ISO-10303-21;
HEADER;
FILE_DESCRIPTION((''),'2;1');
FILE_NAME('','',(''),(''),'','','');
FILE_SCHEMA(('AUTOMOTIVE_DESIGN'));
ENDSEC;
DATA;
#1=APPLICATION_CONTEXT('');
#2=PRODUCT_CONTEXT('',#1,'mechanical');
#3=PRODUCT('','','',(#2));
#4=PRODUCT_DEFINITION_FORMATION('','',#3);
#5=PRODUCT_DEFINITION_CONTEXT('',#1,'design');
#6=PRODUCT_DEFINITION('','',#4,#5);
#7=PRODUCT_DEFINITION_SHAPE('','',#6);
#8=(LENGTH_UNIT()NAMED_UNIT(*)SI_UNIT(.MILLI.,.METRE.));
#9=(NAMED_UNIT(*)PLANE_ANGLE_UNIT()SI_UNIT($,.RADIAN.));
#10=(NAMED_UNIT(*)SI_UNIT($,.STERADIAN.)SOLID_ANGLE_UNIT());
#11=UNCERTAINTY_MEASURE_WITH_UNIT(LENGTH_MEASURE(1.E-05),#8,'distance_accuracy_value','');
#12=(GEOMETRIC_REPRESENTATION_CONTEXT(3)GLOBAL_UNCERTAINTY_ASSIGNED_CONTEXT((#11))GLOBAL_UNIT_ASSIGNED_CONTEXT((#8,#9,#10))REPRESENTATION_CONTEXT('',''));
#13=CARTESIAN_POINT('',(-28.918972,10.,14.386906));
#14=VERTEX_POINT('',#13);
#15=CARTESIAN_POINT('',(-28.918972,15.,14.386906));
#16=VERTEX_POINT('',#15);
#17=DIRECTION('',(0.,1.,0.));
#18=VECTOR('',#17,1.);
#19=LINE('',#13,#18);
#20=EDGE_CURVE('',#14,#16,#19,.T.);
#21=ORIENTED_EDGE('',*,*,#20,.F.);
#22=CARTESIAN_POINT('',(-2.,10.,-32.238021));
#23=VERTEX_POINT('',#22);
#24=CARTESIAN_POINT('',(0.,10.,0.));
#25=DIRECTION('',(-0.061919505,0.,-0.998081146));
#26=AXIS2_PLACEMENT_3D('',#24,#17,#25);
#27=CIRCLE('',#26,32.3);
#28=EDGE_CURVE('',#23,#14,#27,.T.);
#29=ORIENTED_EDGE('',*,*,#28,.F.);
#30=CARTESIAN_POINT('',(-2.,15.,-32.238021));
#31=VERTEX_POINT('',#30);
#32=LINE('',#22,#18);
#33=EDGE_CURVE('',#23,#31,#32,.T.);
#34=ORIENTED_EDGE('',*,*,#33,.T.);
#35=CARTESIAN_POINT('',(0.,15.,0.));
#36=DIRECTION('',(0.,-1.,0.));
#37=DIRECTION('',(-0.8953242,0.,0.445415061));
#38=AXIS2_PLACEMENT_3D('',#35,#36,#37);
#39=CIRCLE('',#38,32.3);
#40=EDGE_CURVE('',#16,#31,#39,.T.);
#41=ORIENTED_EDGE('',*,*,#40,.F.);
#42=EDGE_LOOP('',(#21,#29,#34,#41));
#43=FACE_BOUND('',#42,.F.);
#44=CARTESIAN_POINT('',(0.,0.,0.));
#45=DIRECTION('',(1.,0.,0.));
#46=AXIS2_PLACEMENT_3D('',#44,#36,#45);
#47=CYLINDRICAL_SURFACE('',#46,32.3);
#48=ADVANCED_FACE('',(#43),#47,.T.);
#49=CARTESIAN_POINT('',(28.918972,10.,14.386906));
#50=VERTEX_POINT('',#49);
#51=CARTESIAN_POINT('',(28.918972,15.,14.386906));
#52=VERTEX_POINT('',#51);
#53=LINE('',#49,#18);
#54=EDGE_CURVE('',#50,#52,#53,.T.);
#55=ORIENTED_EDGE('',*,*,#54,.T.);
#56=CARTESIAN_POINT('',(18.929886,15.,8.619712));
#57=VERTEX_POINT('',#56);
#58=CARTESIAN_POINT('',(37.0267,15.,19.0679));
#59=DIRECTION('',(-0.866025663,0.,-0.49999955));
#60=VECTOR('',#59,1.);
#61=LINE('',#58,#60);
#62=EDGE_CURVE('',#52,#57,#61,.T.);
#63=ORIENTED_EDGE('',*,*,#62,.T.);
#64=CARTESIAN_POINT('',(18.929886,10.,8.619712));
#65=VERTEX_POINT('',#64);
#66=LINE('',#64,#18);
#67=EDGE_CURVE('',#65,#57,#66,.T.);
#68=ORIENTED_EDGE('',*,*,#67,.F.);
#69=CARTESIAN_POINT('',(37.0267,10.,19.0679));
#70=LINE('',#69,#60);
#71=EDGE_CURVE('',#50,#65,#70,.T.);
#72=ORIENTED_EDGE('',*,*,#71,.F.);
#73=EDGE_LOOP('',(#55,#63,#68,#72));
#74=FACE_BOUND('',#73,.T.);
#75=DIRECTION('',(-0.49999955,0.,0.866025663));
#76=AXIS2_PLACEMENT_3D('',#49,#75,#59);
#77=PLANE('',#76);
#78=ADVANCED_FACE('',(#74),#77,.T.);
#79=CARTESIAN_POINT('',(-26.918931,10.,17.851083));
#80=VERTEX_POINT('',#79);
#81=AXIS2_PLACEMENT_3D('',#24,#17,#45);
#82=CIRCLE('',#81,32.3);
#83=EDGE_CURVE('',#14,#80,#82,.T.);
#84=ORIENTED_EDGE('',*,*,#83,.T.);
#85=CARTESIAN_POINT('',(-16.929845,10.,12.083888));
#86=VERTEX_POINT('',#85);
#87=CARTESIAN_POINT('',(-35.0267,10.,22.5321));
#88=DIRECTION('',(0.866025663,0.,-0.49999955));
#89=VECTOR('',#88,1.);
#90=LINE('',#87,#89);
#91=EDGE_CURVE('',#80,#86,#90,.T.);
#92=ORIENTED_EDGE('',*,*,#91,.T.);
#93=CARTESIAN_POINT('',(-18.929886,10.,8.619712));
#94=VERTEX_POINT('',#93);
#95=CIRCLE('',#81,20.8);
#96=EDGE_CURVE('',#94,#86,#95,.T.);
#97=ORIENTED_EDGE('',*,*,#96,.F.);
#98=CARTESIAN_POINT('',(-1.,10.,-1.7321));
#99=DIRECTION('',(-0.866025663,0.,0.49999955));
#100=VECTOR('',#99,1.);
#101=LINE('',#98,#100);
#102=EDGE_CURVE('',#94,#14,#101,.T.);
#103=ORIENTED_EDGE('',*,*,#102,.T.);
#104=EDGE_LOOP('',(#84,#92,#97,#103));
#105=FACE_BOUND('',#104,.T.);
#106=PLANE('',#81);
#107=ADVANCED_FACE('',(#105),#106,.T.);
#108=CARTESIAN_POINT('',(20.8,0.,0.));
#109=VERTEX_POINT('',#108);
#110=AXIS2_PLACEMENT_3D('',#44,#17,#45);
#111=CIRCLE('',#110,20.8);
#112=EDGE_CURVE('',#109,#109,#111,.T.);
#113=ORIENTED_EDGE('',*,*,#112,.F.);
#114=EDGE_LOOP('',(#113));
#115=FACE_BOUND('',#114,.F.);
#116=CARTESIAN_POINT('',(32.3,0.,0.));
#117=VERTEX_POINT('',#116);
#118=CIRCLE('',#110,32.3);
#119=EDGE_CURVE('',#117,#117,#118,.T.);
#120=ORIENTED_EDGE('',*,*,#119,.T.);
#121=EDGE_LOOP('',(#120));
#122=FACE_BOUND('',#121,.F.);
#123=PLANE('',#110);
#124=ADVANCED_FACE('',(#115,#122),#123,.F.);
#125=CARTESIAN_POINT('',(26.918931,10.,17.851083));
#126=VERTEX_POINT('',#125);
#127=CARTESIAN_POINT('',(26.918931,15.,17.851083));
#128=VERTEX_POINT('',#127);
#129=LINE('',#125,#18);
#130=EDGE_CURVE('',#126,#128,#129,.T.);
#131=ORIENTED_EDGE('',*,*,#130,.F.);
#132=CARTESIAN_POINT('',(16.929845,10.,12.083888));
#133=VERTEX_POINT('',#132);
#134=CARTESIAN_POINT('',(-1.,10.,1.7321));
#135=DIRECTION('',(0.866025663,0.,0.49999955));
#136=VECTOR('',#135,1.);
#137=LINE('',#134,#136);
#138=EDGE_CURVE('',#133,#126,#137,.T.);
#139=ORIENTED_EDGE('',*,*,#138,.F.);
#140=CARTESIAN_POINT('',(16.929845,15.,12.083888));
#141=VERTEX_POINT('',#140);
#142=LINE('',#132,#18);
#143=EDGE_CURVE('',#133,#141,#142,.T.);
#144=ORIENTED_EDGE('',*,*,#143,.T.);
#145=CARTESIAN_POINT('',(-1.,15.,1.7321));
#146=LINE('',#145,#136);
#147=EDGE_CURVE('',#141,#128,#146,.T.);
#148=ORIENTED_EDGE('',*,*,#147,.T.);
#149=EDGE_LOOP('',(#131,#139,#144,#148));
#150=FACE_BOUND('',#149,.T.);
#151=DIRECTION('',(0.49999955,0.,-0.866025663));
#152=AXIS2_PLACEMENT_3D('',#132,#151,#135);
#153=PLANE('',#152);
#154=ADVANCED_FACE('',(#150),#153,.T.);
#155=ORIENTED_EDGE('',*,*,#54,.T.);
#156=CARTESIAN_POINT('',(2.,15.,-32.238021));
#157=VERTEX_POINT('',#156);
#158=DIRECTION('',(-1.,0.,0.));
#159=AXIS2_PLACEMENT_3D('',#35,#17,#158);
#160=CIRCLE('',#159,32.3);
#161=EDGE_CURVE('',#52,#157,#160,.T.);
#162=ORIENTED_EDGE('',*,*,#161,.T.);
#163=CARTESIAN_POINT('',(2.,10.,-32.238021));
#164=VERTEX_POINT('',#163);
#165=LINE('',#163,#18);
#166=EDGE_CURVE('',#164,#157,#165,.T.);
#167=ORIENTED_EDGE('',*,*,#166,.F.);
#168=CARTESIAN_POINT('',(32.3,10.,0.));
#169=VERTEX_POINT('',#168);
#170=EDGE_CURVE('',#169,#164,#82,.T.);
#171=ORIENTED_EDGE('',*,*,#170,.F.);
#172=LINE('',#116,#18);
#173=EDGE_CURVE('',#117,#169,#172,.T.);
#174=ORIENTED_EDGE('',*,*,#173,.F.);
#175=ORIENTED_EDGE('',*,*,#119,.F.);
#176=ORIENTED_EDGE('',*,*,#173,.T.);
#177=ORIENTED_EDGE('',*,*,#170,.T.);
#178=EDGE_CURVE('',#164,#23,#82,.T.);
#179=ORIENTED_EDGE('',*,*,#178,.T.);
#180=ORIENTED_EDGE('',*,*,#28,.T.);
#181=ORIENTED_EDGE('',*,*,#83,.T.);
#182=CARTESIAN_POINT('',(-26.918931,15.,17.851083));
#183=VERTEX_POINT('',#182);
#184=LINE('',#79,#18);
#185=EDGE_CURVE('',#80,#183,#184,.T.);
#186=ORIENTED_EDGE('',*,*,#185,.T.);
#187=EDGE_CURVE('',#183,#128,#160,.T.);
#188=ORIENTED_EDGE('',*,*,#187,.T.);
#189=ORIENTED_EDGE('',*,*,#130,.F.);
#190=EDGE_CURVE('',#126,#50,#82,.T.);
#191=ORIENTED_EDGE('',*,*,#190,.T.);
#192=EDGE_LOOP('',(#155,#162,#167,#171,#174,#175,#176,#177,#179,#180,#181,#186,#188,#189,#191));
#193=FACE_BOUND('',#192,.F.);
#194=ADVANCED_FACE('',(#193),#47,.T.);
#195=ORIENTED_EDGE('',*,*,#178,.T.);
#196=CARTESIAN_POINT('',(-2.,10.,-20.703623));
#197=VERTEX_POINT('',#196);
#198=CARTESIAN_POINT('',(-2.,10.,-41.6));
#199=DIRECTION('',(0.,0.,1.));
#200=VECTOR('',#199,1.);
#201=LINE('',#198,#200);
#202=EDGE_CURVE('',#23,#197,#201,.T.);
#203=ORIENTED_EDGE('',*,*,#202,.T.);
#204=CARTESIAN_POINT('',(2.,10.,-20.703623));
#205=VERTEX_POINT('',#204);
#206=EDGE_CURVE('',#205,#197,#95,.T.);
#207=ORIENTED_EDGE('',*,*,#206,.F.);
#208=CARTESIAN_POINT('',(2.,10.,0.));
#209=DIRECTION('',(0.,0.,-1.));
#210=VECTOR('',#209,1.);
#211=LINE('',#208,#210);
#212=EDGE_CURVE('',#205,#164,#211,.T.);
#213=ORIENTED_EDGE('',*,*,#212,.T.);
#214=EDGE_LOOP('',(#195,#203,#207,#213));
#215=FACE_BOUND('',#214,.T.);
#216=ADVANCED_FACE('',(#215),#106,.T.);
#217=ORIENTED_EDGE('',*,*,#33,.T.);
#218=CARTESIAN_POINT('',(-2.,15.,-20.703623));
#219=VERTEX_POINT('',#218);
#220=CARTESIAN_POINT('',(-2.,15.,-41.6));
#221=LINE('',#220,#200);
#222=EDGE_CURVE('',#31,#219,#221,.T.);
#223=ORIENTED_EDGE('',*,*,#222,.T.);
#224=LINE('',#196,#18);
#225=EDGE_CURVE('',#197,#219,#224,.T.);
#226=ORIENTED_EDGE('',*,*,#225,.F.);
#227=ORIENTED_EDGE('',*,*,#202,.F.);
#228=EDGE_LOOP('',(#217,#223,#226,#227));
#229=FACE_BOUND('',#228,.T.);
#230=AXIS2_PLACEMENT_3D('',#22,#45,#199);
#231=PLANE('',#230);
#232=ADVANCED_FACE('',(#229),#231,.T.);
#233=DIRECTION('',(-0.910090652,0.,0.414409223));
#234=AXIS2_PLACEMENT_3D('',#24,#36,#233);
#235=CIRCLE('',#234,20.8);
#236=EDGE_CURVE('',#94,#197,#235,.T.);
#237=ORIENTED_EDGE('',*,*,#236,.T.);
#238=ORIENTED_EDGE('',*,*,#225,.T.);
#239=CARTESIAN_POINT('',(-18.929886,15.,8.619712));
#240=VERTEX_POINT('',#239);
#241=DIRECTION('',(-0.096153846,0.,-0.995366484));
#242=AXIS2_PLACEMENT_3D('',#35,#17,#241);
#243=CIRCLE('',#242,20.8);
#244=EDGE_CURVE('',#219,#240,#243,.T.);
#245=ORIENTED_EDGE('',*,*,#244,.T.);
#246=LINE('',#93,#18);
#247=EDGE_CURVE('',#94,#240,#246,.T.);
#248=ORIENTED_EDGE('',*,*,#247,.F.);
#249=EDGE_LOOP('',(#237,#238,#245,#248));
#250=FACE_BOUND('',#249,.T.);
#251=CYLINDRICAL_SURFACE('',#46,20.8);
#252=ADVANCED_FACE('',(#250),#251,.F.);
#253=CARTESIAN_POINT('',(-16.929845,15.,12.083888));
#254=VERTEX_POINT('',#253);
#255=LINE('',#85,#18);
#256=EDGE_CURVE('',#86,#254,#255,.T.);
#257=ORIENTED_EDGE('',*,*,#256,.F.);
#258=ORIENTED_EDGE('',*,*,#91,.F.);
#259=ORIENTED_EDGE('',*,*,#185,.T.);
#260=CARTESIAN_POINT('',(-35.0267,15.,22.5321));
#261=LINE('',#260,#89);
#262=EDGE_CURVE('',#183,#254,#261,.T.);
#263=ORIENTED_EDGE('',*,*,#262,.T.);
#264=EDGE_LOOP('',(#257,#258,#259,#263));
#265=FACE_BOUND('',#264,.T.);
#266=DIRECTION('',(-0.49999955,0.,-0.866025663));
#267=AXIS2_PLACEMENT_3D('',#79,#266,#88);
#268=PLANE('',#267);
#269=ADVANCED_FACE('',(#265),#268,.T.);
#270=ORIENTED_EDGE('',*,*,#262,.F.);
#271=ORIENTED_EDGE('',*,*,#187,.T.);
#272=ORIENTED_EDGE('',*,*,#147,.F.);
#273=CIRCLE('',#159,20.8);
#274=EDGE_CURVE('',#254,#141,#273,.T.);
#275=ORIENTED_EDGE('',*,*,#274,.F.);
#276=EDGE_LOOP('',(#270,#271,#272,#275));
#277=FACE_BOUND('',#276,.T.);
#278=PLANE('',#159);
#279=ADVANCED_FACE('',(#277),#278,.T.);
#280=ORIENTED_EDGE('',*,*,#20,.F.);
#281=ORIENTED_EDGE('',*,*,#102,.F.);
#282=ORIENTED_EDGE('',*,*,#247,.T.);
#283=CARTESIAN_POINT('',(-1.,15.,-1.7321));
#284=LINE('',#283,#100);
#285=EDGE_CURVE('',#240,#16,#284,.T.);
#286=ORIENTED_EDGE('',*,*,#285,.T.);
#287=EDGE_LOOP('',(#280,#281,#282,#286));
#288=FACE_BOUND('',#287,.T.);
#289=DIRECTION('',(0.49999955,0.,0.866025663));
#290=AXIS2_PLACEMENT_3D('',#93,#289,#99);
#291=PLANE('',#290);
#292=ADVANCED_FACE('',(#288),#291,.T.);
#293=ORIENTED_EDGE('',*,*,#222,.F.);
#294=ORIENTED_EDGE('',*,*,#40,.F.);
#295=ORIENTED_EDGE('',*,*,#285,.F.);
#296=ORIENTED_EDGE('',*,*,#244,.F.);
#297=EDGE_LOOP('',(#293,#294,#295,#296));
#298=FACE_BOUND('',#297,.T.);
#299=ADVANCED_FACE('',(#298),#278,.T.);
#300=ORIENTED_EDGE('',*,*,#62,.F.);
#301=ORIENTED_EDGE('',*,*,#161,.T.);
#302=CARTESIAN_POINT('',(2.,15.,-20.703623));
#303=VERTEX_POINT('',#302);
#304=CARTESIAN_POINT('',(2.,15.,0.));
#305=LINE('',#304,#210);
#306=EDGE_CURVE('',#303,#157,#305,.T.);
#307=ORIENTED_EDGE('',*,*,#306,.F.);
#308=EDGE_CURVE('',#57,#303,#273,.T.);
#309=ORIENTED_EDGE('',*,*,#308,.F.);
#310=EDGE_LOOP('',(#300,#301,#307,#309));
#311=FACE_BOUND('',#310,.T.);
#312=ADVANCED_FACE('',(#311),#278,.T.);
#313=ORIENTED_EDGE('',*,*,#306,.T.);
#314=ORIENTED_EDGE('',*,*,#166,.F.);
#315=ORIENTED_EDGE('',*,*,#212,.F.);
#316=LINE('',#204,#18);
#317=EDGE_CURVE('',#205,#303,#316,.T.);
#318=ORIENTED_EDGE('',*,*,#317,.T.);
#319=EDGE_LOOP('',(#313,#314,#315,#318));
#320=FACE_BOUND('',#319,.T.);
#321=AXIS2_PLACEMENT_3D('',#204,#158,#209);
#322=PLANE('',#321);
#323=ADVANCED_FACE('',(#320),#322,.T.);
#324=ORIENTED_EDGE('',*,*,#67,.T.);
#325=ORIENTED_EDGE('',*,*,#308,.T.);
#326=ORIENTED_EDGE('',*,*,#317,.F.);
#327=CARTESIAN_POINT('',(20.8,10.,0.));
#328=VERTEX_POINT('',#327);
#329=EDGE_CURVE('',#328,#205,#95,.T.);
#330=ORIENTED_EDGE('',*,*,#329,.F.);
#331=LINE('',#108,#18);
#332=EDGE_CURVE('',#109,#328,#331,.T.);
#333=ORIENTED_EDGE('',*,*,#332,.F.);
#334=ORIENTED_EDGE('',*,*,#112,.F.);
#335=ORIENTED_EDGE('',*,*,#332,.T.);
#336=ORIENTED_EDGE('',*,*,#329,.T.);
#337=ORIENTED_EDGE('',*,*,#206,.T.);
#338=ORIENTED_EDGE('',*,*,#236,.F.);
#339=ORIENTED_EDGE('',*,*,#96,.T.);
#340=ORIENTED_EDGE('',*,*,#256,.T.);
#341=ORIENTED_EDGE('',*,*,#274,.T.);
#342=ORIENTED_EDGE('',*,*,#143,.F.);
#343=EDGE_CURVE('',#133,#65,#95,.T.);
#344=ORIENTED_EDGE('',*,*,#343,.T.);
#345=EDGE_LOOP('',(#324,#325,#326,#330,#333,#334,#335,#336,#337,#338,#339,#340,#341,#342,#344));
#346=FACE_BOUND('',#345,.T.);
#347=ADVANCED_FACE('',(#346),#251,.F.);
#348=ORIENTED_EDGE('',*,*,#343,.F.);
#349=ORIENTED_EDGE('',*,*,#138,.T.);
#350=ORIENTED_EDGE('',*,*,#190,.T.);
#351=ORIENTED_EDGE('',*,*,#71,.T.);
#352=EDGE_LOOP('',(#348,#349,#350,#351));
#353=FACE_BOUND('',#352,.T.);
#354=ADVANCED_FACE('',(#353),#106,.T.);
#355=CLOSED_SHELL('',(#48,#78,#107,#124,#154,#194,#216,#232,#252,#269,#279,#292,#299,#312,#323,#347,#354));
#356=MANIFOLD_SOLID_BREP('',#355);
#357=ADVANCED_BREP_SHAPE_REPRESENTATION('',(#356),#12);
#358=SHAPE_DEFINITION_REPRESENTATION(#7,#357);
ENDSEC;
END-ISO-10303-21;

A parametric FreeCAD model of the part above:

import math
import FreeCAD as App
import Part
import Sketcher
from FreeCAD import Vector
Q = App.Units.Quantity

doc = App.newDocument("Part")
body = doc.addObject("PartDesign::Body", "Body")

# Sketch on XZ plane
sketch1 = body.newObject("Sketcher::SketchObject", "Sketch")
sketch1.AttachmentSupport = (doc.getObject("XZ_Plane"), [""])
sketch1.MapMode = "FlatFace"
sketch1.addGeometry(Part.Circle(Vector(0, 0, 0), Vector(0, 0, 1), 32.3), False)
sketch1.addGeometry(Part.Circle(Vector(0, 0, 0), Vector(0, 0, 1), 20.8), False)
sketch1.addConstraint(Sketcher.Constraint("Coincident", 0, 3, -1, 1))
sketch1.addConstraint(Sketcher.Constraint("Coincident", 1, 3, -1, 1))
sketch1.addConstraint(Sketcher.Constraint("Diameter", 0, Q("64.6 mm")))
sketch1.addConstraint(Sketcher.Constraint("Diameter", 1, Q("41.6 mm")))
pad1 = body.newObject("PartDesign::Pad", "Pad")
pad1.Profile = sketch1
pad1.Length = 10
pad1.Reversed = True

# Sketch on XZ plane
sketch2 = body.newObject("Sketcher::SketchObject", "Sketch001")
sketch2.AttachmentSupport = (doc.getObject("XZ_Plane"), [""])
sketch2.MapMode = "FlatFace"
sketch2.AttachmentOffset = App.Placement(Vector(0, 0, -10), App.Rotation())
sketch2.addGeometry(Part.ArcOfCircle(Part.Circle(Vector(0, 0, 0), Vector(0, 0, 1), 20.8), math.radians(155.517882), math.radians(264.482266)), False)
sketch2.addGeometry(Part.LineSegment(Vector(-2, -20.703623, 0), Vector(-2, -32.238021, 0)), False)
sketch2.addGeometry(Part.ArcOfCircle(Part.Circle(Vector(0, 0, 0), Vector(0, 0, 1), 32.3), math.radians(153.550103), math.radians(266.450003)), False)
sketch2.addGeometry(Part.LineSegment(Vector(-28.918972, 14.386906, 0), Vector(-18.929886, 8.619712, 0)), False)
sketch2.addGeometry(Part.ArcOfCircle(Part.Circle(Vector(0, 0, 0), Vector(0, 0, 1), 20.8), math.radians(35.517823), math.radians(144.482177)), False)
sketch2.addGeometry(Part.LineSegment(Vector(-16.929845, 12.083888, 0), Vector(-26.918931, 17.851083, 0)), False)
sketch2.addGeometry(Part.ArcOfCircle(Part.Circle(Vector(0, 0, 0), Vector(0, 0, 1), 32.3), math.radians(33.550043), math.radians(146.449957)), False)
sketch2.addGeometry(Part.LineSegment(Vector(26.918931, 17.851083, 0), Vector(16.929845, 12.083888, 0)), False)
sketch2.addGeometry(Part.LineSegment(Vector(2, -32.238021, 0), Vector(2, -20.703623, 0)), False)
sketch2.addGeometry(Part.ArcOfCircle(Part.Circle(Vector(0, 0, 0), Vector(0, 0, 1), 20.8), math.radians(-84.482266), math.radians(24.482118)), False)
sketch2.addGeometry(Part.LineSegment(Vector(18.929886, 8.619712, 0), Vector(28.918972, 14.386906, 0)), False)
sketch2.addGeometry(Part.ArcOfCircle(Part.Circle(Vector(0, 0, 0), Vector(0, 0, 1), 32.3), math.radians(-86.450003), math.radians(26.449897)), False)
sketch2.addConstraint(Sketcher.Constraint("Coincident", 0, 2, 1, 1))
sketch2.addConstraint(Sketcher.Constraint("Coincident", 1, 2, 2, 2))
sketch2.addConstraint(Sketcher.Constraint("Coincident", 2, 1, 3, 1))
sketch2.addConstraint(Sketcher.Constraint("Coincident", 3, 2, 0, 1))
sketch2.addConstraint(Sketcher.Constraint("Coincident", 4, 2, 5, 1))
sketch2.addConstraint(Sketcher.Constraint("Coincident", 5, 2, 6, 2))
sketch2.addConstraint(Sketcher.Constraint("Coincident", 6, 1, 7, 1))
sketch2.addConstraint(Sketcher.Constraint("Coincident", 7, 2, 4, 1))
sketch2.addConstraint(Sketcher.Constraint("Coincident", 8, 2, 9, 1))
sketch2.addConstraint(Sketcher.Constraint("Coincident", 9, 2, 10, 1))
sketch2.addConstraint(Sketcher.Constraint("Coincident", 10, 2, 11, 2))
sketch2.addConstraint(Sketcher.Constraint("Coincident", 11, 1, 8, 1))
sketch2.addConstraint(Sketcher.Constraint("Vertical", 1))
sketch2.addConstraint(Sketcher.Constraint("Vertical", 8))
sketch2.addConstraint(Sketcher.Constraint("Coincident", 0, 3, -1, 1))
sketch2.addConstraint(Sketcher.Constraint("Coincident", 2, 3, -1, 1))
sketch2.addConstraint(Sketcher.Constraint("Coincident", 4, 3, -1, 1))
sketch2.addConstraint(Sketcher.Constraint("Coincident", 6, 3, -1, 1))
sketch2.addConstraint(Sketcher.Constraint("Coincident", 9, 3, -1, 1))
sketch2.addConstraint(Sketcher.Constraint("Coincident", 11, 3, -1, 1))
sketch2.addConstraint(Sketcher.Constraint("Equal", 0, 4))
sketch2.addConstraint(Sketcher.Constraint("Equal", 2, 6))
sketch2.addConstraint(Sketcher.Constraint("Equal", 4, 9))
sketch2.addConstraint(Sketcher.Constraint("Equal", 6, 11))
sketch2.addConstraint(Sketcher.Constraint("Parallel", 3, 5))
sketch2.addConstraint(Sketcher.Constraint("Parallel", 7, 10))
sketch2.addConstraint(Sketcher.Constraint("Horizontal", 5, 2, 6, 1))
sketch2.addConstraint(Sketcher.Constraint("Horizontal", 4, 2, 7, 2))
sketch2.addConstraint(Sketcher.Constraint("Horizontal", 0, 2, 8, 2))
sketch2.addConstraint(Sketcher.Constraint("Horizontal", 3, 2, 9, 2))
sketch2.addConstraint(Sketcher.Constraint("Equal", 3, 5))
sketch2.addConstraint(Sketcher.Constraint("DistanceX", 0, 2, 8, 2, Q("4 mm")))
sketch2.addConstraint(Sketcher.Constraint("Radius", 0, Q("20.8 mm")))
sketch2.addConstraint(Sketcher.Constraint("Radius", 2, Q("32.3 mm")))
sketch2.addConstraint(Sketcher.Constraint("Angle", 3, Q("-30 deg")))
sketch2.addConstraint(Sketcher.Constraint("DistanceX", 3, 2, 4, 2, Q("2 mm")))
pad2 = body.newObject("PartDesign::Pad", "Pad001")
pad2.Profile = sketch2
pad2.Length = 5
pad2.Reversed = True

doc.recompute()
